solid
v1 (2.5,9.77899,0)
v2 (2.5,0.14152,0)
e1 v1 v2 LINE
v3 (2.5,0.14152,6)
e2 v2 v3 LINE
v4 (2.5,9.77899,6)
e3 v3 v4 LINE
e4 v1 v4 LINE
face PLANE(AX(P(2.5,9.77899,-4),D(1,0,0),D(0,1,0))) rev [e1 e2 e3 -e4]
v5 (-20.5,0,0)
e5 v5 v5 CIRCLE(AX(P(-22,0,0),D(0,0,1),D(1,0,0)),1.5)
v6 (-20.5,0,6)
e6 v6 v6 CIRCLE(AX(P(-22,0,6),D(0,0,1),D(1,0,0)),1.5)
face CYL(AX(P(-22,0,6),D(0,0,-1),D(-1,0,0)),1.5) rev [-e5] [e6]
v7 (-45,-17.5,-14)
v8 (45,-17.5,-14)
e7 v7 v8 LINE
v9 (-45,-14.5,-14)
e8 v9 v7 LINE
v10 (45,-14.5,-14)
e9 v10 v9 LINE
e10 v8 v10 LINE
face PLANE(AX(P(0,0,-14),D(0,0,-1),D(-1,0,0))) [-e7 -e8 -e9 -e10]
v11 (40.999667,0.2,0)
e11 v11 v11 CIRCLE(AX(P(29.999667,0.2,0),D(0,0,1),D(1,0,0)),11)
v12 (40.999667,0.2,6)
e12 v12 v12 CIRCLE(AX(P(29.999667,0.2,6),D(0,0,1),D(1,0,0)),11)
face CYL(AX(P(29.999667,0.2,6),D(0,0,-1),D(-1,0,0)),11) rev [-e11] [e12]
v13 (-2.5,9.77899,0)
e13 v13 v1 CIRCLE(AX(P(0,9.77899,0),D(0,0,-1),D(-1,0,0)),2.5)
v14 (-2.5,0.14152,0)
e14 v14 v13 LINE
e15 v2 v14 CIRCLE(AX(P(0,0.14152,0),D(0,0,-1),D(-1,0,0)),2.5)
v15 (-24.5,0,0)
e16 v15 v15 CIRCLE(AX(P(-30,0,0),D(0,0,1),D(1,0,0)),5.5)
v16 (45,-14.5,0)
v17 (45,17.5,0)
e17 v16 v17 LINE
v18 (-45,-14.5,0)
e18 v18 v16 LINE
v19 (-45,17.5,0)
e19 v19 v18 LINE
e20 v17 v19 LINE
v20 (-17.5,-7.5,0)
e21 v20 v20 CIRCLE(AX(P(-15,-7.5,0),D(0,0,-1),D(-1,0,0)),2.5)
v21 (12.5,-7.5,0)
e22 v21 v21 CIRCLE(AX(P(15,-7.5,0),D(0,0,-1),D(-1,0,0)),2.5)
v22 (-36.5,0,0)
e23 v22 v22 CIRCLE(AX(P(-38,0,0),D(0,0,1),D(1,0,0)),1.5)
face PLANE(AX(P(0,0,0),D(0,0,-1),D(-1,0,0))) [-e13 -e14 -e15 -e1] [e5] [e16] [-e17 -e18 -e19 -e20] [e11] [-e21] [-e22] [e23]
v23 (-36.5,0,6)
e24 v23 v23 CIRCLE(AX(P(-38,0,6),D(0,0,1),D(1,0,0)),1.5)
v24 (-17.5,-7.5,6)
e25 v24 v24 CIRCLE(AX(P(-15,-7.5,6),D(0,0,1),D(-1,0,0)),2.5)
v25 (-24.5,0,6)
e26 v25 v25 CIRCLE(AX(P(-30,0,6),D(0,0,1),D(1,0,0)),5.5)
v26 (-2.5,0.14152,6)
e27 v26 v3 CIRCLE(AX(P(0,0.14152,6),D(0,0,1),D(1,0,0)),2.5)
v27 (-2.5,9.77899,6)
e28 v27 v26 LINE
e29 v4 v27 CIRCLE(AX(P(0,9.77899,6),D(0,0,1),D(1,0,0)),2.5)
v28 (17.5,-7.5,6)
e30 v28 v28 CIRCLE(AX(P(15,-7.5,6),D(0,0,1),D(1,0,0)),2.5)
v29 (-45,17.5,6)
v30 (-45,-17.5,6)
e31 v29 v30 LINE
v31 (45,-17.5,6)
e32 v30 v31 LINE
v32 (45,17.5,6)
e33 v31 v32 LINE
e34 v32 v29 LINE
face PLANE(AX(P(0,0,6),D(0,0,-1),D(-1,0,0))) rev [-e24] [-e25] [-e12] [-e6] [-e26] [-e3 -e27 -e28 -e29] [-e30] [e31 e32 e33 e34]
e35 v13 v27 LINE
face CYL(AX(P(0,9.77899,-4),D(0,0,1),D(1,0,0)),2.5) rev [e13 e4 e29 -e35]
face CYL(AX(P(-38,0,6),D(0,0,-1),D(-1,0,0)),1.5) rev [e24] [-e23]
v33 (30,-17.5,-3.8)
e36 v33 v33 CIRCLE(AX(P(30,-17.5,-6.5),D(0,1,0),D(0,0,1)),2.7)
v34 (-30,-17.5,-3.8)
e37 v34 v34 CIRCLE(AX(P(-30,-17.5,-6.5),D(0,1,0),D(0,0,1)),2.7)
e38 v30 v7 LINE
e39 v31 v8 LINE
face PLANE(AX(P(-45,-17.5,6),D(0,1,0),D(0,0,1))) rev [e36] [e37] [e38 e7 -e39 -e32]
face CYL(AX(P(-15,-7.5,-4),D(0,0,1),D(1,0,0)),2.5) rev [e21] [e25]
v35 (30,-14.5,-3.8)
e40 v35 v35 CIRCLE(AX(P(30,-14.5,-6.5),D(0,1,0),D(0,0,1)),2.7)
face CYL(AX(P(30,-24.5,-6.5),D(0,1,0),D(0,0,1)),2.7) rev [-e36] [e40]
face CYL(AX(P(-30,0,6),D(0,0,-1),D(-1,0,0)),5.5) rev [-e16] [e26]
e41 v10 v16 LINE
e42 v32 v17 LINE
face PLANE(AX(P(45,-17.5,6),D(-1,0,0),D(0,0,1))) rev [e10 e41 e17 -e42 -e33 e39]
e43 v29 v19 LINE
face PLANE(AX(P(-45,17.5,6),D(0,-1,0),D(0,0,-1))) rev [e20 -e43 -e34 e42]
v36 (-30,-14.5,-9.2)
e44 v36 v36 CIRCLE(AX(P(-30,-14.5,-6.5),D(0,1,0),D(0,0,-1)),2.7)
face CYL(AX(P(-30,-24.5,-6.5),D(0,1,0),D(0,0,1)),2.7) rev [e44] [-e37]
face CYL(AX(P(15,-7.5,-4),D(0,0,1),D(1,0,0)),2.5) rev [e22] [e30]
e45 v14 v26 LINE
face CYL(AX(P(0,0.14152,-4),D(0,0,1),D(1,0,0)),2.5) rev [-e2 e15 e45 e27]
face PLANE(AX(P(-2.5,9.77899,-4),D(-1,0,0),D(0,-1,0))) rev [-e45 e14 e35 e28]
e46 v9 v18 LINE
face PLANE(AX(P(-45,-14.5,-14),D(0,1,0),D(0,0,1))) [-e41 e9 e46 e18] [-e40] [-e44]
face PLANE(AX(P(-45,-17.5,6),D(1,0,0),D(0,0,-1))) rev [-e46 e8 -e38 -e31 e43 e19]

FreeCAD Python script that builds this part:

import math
import FreeCAD as App
import Part
import Sketcher
from FreeCAD import Vector
Q = App.Units.Quantity

doc = App.newDocument("Part")
body = doc.addObject("PartDesign::Body", "Body")

# Sketch on XY plane
sketch1 = doc.addObject("Sketcher::SketchObject", "Sketch")
body.addObject(sketch1)
sketch1.AttachmentSupport = (doc.XY_Plane, [""])
sketch1.MapMode = "FlatFace"
sketch1.addGeometry([
    Part.LineSegment(Vector(-45, 17.5, 0), Vector(-45, -17.5, 0)),  # 0
    Part.LineSegment(Vector(-45, -17.5, 0), Vector(45, -17.5, 0)),  # 1
    Part.LineSegment(Vector(45, -17.5, 0), Vector(45, 17.5, 0)),  # 2
    Part.LineSegment(Vector(45, 17.5, 0), Vector(-45, 17.5, 0)),  # 3
    Part.Circle(Vector(-38, 0, 0), Vector(0, 0, 1), 1.5),  # 4
    Part.Circle(Vector(-30, 0, 0), Vector(0, 0, 1), 5.5),  # 5
    Part.Circle(Vector(-22, 0, 0), Vector(0, 0, 1), 1.5),  # 6
    Part.Circle(Vector(30, 0.2, 0), Vector(0, 0, 1), 11),  # 7
], False)
sketch1.addConstraint([
    Sketcher.Constraint("Coincident", 0, 2, 1, 1),
    Sketcher.Constraint("Coincident", 1, 2, 2, 1),
    Sketcher.Constraint("Coincident", 2, 2, 3, 1),
    Sketcher.Constraint("Coincident", 3, 2, 0, 1),
    Sketcher.Constraint("Vertical", 0),
    Sketcher.Constraint("Horizontal", 1),
    Sketcher.Constraint("Vertical", 2),
    Sketcher.Constraint("Horizontal", 3),
    Sketcher.Constraint("Equal", 4, 6),
    Sketcher.Constraint("Symmetric", 0, 2, 2, 2, -1, 1),
    Sketcher.Constraint("PointOnObject", 4, 3, -1),
    Sketcher.Constraint("PointOnObject", 5, 3, -1),
    Sketcher.Constraint("PointOnObject", 6, 3, -1),
    Sketcher.Constraint("Diameter", 4, Q("3 mm")),
    Sketcher.Constraint("Diameter", 5, Q("11 mm")),
    Sketcher.Constraint("Diameter", 7, Q("22 mm")),
    Sketcher.Constraint("DistanceX", 1, 1, 1, 2, Q("90 mm")),
    Sketcher.Constraint("DistanceY", 0, 2, 0, 1, Q("35 mm")),
    Sketcher.Constraint("DistanceX", 4, 3, -1, 1, Q("38 mm")),
    Sketcher.Constraint("DistanceX", 5, 3, -1, 1, Q("30 mm")),
    Sketcher.Constraint("DistanceX", 6, 3, -1, 1, Q("22 mm")),
    Sketcher.Constraint("DistanceY", -1, 1, 7, 3, Q("0.2 mm")),
    Sketcher.Constraint("DistanceX", -1, 1, 7, 3, Q("29.999667 mm")),
])
pad1 = doc.addObject("PartDesign::Pad", "Pad")
body.addObject(pad1)
pad1.Profile = sketch1
pad1.Length = 6

# Sketch on XY plane
sketch2 = doc.addObject("Sketcher::SketchObject", "Sketch001")
body.addObject(sketch2)
sketch2.AttachmentSupport = (doc.XY_Plane, [""])
sketch2.MapMode = "FlatFace"
sketch2.AttachmentOffset = App.Placement(Vector(0, 0, 6), App.Rotation())
sketch2.addGeometry([
    Part.LineSegment(Vector(-45, -14.5, 0), Vector(-45, -17.5, 0)),
    Part.LineSegment(Vector(-45, -17.5, 0), Vector(45, -17.5, 0)),
    Part.LineSegment(Vector(45, -17.5, 0), Vector(45, -14.5, 0)),
    Part.LineSegment(Vector(45, -14.5, 0), Vector(-45, -14.5, 0)),
], False)
sketch2.addConstraint([
    Sketcher.Constraint("Coincident", 0, 2, 1, 1),
    Sketcher.Constraint("Coincident", 1, 2, 2, 1),
    Sketcher.Constraint("Coincident", 2, 2, 3, 1),
    Sketcher.Constraint("Coincident", 3, 2, 0, 1),
    Sketcher.Constraint("Vertical", 0),
    Sketcher.Constraint("Horizontal", 1),
    Sketcher.Constraint("Vertical", 2),
    Sketcher.Constraint("Horizontal", 3),
    Sketcher.Constraint("DistanceX", 1, 1, 1, 2, Q("90 mm")),
    Sketcher.Constraint("DistanceY", 0, 2, 0, 1, Q("3 mm")),
    Sketcher.Constraint("DistanceX", 0, 2, -1, 1, Q("45 mm")),
    Sketcher.Constraint("DistanceY", 0, 2, -1, 1, Q("17.5 mm")),
])
pad2 = doc.addObject("PartDesign::Pad", "Pad001")
body.addObject(pad2)
pad2.Profile = sketch2
pad2.Length = 20
pad2.Reversed = True

# Sketch on XY plane
sketch3 = doc.addObject("Sketcher::SketchObject", "Sketch002")
body.addObject(sketch3)
sketch3.AttachmentSupport = (doc.XY_Plane, [""])
sketch3.MapMode = "FlatFace"
sketch3.AttachmentOffset = App.Placement(Vector(0, 0, 6), App.Rotation())
sketch3.addGeometry([
    Part.Circle(Vector(15, -7.5, 0), Vector(0, 0, 1), 2.5),  # 0
    Part.Circle(Vector(-15, -7.5, 0), Vector(0, 0, 1), 2.5),  # 1
    Part.LineSegment(Vector(2.5, 0.1, 0), Vector(2.5, 9.8, 0)),  # 2
    Part.ArcOfCircle(Part.Circle(Vector(0, 9.8, 0), Vector(0, 0, 1), 2.5), math.radians(0), math.radians(180)),  # 3
    Part.LineSegment(Vector(-2.5, 9.8, 0), Vector(-2.5, 0.1, 0)),  # 4
    Part.ArcOfCircle(Part.Circle(Vector(0, 0.1, 0), Vector(0, 0, 1), 2.5), math.radians(180), math.radians(360)),  # 5
], False)
sketch3.addConstraint([
    Sketcher.Constraint("Tangent", 2, 2, 3, 1),
    Sketcher.Constraint("Tangent", 3, 2, 4, 1),
    Sketcher.Constraint("Tangent", 4, 2, 5, 1),
    Sketcher.Constraint("Tangent", 5, 2, 2, 1),
    Sketcher.Constraint("Vertical", 2),
    Sketcher.Constraint("Vertical", 4),
    Sketcher.Constraint("Equal", 0, 1),
    Sketcher.Constraint("Equal", 1, 3),
    Sketcher.Constraint("Symmetric", 0, 3, 1, 3, -2),
    Sketcher.Constraint("PointOnObject", 3, 3, -2),
    Sketcher.Constraint("Diameter", 0, Q("5 mm")),
    Sketcher.Constraint("DistanceX", -1, 1, 0, 3, Q("15 mm")),
    Sketcher.Constraint("DistanceY", 0, 3, -1, 1, Q("7.5 mm")),
    Sketcher.Constraint("DistanceY", 2, 1, 2, 2, Q("9.63747 mm")),
    Sketcher.Constraint("DistanceY", -1, 1, 3, 3, Q("9.77899 mm")),
])
pocket1 = doc.addObject("PartDesign::Pocket", "Pocket")
body.addObject(pocket1)
pocket1.Profile = sketch3
pocket1.Length = 10

# Sketch on XZ plane
sketch4 = doc.addObject("Sketcher::SketchObject", "Sketch003")
body.addObject(sketch4)
sketch4.AttachmentSupport = (doc.XZ_Plane, [""])
sketch4.MapMode = "FlatFace"
sketch4.AttachmentOffset = App.Placement(Vector(0, 0, 14.5), App.Rotation())
sketch4.addGeometry([
    Part.Circle(Vector(30, -6.5, 0), Vector(0, 0, 1), 2.7),
    Part.Circle(Vector(-30, -6.5, 0), Vector(0, 0, 1), 2.7),
], False)
sketch4.addConstraint([
    Sketcher.Constraint("Equal", 0, 1),
    Sketcher.Constraint("Symmetric", 0, 3, 1, 3, -2),
    Sketcher.Constraint("Diameter", 0, Q("5.4 mm")),
    Sketcher.Constraint("DistanceX", -1, 1, 0, 3, Q("30 mm")),
    Sketcher.Constraint("DistanceY", 0, 3, -1, 1, Q("6.5 mm")),
])
pocket2 = doc.addObject("PartDesign::Pocket", "Pocket001")
body.addObject(pocket2)
pocket2.Profile = sketch4
pocket2.Length = 10
pocket2.Reversed = True

doc.recompute()
